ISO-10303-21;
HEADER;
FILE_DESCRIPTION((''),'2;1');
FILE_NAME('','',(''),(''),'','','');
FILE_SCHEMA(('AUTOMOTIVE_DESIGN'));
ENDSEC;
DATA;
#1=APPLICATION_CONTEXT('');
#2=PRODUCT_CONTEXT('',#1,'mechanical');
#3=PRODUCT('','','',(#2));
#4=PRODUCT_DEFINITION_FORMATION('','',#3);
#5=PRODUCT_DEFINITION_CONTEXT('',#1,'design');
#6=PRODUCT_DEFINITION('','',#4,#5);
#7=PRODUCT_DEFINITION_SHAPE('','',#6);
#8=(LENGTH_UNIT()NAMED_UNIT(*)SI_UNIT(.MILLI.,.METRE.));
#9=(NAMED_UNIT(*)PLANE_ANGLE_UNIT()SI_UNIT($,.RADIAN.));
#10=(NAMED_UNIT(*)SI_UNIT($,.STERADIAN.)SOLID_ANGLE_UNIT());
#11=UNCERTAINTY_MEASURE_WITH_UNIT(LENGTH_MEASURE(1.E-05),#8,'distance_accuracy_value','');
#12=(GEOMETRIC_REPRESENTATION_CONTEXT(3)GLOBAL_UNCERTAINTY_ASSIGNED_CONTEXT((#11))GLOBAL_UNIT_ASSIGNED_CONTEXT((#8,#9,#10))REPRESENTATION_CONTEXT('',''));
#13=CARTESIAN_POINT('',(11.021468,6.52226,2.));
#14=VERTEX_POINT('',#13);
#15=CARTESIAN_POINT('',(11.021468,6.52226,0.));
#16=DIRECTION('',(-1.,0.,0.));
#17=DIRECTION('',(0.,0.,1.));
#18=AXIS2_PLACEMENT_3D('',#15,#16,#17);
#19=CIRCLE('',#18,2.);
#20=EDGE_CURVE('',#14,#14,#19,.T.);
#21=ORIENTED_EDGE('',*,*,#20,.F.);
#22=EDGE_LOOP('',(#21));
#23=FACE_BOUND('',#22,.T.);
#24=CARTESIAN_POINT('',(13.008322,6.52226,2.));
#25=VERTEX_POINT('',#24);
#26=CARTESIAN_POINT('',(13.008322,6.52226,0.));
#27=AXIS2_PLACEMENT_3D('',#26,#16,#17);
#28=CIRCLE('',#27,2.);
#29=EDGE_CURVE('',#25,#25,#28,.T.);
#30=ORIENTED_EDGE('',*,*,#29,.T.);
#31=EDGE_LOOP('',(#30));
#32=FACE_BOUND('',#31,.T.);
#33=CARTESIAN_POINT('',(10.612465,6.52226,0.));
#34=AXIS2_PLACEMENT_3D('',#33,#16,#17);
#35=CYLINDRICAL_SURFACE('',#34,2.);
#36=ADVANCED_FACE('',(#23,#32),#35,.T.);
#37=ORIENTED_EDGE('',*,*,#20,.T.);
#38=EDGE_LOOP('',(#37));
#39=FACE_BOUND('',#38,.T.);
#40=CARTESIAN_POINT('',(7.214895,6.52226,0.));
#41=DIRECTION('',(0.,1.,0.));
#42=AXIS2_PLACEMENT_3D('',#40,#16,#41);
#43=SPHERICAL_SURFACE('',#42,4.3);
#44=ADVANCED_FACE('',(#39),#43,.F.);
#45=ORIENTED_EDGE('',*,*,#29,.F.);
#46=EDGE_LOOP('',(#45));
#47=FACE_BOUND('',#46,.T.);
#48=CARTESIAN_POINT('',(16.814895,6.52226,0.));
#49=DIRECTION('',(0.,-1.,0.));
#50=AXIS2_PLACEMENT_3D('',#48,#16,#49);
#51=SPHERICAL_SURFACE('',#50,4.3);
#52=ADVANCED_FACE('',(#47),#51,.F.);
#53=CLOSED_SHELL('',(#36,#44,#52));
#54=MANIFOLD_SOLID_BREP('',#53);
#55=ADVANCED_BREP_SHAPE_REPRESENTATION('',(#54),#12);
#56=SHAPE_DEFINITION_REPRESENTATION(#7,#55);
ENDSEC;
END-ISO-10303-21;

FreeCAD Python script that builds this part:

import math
import FreeCAD as App
import Part
import Sketcher

V = App.Vector
Q = App.Units.Quantity

doc = App.newDocument("Part")
body = doc.addObject("PartDesign::Body", "Body")

# Sketch on XY plane
sketch1 = doc.addObject("Sketcher::SketchObject", "Sketch")
body.addObject(sketch1)
sketch1.AttachmentSupport = (doc.XY_Plane, [""])
sketch1.MapMode = "FlatFace"
sketch1.addGeometry(Part.LineSegment(V(11.514895, 6.52226, 0), V(12.514895, 6.52226, 0)), False)
sketch1.addGeometry(Part.ArcOfCircle(Part.Circle(V(16.814895, 6.52226, 0), V(0, 0, 1), 4.3), math.radians(152.282252), math.radians(180)), False)
sketch1.addGeometry(Part.LineSegment(V(13.008322, 8.52226, 0), V(11.021468, 8.52226, 0)), False)
sketch1.addGeometry(Part.ArcOfCircle(Part.Circle(V(7.214895, 6.52226, 0), V(0, 0, 1), 4.3), math.radians(0), math.radians(27.717748)), False)
sketch1.addGeometry(Part.LineSegment(V(7.214895, 6.52226, 0), V(16.814895, 6.52226, 0)), True)  # axis
sketch1.addConstraint(Sketcher.Constraint("Coincident", 0, 2, 1, 2))
sketch1.addConstraint(Sketcher.Constraint("Coincident", 1, 1, 2, 1))
sketch1.addConstraint(Sketcher.Constraint("Coincident", 2, 2, 3, 2))
sketch1.addConstraint(Sketcher.Constraint("Coincident", 3, 1, 0, 1))
sketch1.addConstraint(Sketcher.Constraint("Horizontal", 0))
sketch1.addConstraint(Sketcher.Constraint("Horizontal", 2))
sketch1.addConstraint(Sketcher.Constraint("Horizontal", 4))
sketch1.addConstraint(Sketcher.Constraint("Coincident", 4, 1, 3, 3))
sketch1.addConstraint(Sketcher.Constraint("Coincident", 4, 2, 1, 3))
sketch1.addConstraint(Sketcher.Constraint("Equal", 1, 3))
sketch1.addConstraint(Sketcher.Constraint("Horizontal", 3, 3, 0, 2))
sketch1.addConstraint(Sketcher.Constraint("Radius", 1, Q("4.3 mm")))
sketch1.addConstraint(Sketcher.Constraint("DistanceX", 0, 1, 0, 2, Q("1 mm")))
sketch1.addConstraint(Sketcher.Constraint("DistanceY", 0, 2, 1, 1, Q("2 mm")))
sketch1.addConstraint(Sketcher.Constraint("DistanceY", -1, 1, 1, 3, Q("6.52226 mm")))
sketch1.addConstraint(Sketcher.Constraint("DistanceX", -1, 1, 1, 1, Q("13.008322 mm")))
revolution = doc.addObject("PartDesign::Revolution", "Revolution")
body.addObject(revolution)
revolution.Profile = sketch1
revolution.ReferenceAxis = (sketch1, ["Axis0"])
revolution.Angle = 360

doc.recompute()
